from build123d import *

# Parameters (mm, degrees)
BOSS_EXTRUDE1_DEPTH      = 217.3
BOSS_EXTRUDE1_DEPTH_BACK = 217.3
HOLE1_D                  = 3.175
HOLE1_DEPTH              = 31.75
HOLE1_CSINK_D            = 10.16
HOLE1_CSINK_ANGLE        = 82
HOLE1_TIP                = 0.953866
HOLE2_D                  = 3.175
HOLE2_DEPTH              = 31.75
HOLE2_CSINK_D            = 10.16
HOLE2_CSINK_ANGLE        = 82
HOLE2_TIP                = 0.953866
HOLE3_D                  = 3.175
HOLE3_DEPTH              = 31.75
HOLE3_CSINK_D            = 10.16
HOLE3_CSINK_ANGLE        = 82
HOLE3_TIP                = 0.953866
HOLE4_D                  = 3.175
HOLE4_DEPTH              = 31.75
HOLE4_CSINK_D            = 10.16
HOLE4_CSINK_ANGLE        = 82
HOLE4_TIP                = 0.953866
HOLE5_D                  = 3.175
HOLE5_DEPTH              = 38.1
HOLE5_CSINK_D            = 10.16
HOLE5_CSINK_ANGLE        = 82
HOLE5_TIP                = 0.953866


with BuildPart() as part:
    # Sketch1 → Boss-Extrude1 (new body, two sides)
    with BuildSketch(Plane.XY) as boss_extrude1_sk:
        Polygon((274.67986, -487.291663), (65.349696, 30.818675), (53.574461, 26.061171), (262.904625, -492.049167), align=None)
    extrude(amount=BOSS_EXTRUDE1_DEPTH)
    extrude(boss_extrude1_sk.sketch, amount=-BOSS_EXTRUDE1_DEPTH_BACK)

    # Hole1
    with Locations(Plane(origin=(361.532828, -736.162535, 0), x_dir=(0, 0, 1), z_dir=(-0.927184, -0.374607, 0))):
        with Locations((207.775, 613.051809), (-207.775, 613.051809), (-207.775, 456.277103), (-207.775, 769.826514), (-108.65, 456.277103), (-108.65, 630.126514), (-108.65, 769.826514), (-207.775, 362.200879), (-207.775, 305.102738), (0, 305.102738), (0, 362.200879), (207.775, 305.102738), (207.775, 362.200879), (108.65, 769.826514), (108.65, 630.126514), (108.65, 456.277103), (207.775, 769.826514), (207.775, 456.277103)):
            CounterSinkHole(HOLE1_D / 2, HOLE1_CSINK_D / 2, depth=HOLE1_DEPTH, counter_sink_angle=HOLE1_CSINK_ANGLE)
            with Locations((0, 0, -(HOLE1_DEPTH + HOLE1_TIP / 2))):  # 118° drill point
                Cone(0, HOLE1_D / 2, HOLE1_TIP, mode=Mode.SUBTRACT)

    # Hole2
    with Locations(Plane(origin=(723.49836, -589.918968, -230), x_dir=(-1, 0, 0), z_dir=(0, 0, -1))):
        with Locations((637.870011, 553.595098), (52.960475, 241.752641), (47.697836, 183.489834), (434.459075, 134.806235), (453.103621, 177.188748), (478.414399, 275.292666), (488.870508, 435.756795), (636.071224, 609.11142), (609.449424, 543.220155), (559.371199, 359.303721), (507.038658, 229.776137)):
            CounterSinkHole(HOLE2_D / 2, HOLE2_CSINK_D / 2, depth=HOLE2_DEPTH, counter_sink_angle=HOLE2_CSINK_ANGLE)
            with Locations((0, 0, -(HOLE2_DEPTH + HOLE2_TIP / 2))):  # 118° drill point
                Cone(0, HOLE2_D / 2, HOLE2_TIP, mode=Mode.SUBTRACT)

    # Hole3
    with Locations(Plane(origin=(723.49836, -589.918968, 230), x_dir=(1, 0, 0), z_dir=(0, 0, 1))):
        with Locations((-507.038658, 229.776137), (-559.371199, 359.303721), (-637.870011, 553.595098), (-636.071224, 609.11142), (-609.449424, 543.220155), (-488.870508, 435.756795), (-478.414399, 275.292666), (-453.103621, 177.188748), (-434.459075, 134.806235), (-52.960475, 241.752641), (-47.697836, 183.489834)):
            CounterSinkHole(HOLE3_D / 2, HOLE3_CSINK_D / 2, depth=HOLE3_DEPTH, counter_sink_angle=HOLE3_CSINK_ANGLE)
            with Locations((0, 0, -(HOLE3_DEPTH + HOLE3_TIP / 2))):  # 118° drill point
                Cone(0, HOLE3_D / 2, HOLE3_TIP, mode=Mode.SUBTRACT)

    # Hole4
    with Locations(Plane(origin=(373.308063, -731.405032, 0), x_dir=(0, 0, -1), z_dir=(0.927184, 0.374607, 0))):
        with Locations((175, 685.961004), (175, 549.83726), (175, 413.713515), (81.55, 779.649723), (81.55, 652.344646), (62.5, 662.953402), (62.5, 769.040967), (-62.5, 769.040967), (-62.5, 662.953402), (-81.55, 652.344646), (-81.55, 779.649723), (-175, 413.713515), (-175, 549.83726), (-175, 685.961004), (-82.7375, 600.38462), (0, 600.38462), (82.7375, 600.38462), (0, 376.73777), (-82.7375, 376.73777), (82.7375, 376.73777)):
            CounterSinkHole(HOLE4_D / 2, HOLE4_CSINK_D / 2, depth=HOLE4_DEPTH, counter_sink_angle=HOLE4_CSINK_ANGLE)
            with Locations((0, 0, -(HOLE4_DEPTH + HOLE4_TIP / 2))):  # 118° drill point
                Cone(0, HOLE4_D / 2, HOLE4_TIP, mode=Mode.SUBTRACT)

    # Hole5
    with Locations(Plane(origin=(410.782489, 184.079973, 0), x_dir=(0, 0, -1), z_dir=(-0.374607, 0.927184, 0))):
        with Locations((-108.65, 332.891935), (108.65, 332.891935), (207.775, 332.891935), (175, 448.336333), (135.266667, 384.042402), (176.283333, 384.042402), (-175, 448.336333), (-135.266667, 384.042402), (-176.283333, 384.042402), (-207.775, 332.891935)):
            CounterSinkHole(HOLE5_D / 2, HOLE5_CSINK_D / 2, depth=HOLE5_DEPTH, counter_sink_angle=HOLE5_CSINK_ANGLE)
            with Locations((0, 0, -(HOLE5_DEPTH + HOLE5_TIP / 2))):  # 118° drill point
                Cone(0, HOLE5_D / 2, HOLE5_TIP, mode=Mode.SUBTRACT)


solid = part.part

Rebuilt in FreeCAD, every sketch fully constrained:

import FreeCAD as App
import Part
import Sketcher
from FreeCAD import Vector
Q = App.Units.Quantity

doc = App.newDocument("Part")
body = doc.addObject("PartDesign::Body", "Body")

# Sketch on XY plane
sketch1 = body.newObject("Sketcher::SketchObject", "Sketch")
sketch1.AttachmentSupport = (doc.getObject("XY_Plane"), [""])
sketch1.MapMode = "FlatFace"
sketch1.addGeometry([
    Part.LineSegment(Vector(275, -487, 0), Vector(65, 31, 0)),
    Part.LineSegment(Vector(65, 31, 0), Vector(54, 26, 0)),
    Part.LineSegment(Vector(54, 26, 0), Vector(263, -492, 0)),
    Part.LineSegment(Vector(263, -492, 0), Vector(275, -487, 0)),
], False)
sketch1.addConstraint([
    Sketcher.Constraint("Coincident", 0, 2, 1, 1),
    Sketcher.Constraint("Coincident", 1, 2, 2, 1),
    Sketcher.Constraint("Coincident", 2, 2, 3, 1),
    Sketcher.Constraint("Coincident", 3, 2, 0, 1),
    Sketcher.Constraint("Perpendicular", 0, 1),
    Sketcher.Constraint("Perpendicular", 1, 2),
    Sketcher.Constraint("Perpendicular", 2, 3),
    Sketcher.Constraint("Distance", 0, Q("22 in")),
    Sketcher.Constraint("Angle", 0, Q("112 deg")),
    Sketcher.Constraint("Distance", 1, Q("0.5 in")),
    Sketcher.Constraint("DistanceX", -1, 1, 1, 2, Q("53.574461 mm")),
    Sketcher.Constraint("DistanceY", -1, 1, 1, 2, Q("26.061171 mm")),
])
pad1 = body.newObject("PartDesign::Pad", "Pad")
pad1.Profile = sketch1
pad1.Type = "TwoLengths"
pad1.Length = 217.3
pad1.Length2 = 217.3

# Sketch on an angled plane
sketch2 = body.newObject("Sketcher::SketchObject", "Sketch001")
sketch2.Placement = App.Placement(Vector(55.107905, 22.26506, 0), App.Rotation(Vector(0, 0, 1), Vector(-0.374606892, 0.927183734, 0), Vector(-0.927183734, -0.374606892, 0), "ZXY"))
sketch2.addGeometry([
    Part.Circle(Vector(207.8, -204.9, 0), Vector(0, 0, 1), 1.6),  # 0
    Part.Circle(Vector(-207.8, -204.9, 0), Vector(0, 0, 1), 1.6),  # 1
    Part.Circle(Vector(-207.8, -361.7, 0), Vector(0, 0, 1), 1.6),  # 2
    Part.Circle(Vector(-207.8, -48.2, 0), Vector(0, 0, 1), 1.6),  # 3
    Part.Circle(Vector(-108.7, -361.7, 0), Vector(0, 0, 1), 1.6),  # 4
    Part.Circle(Vector(-108.7, -187.9, 0), Vector(0, 0, 1), 1.6),  # 5
    Part.Circle(Vector(-108.7, -48.2, 0), Vector(0, 0, 1), 1.6),  # 6
    Part.Circle(Vector(-207.8, -455.8, 0), Vector(0, 0, 1), 1.6),  # 7
    Part.Circle(Vector(-207.8, -512.9, 0), Vector(0, 0, 1), 1.6),  # 8
    Part.Circle(Vector(0, -512.9, 0), Vector(0, 0, 1), 1.6),  # 9
    Part.Circle(Vector(0, -455.8, 0), Vector(0, 0, 1), 1.6),  # 10
    Part.Circle(Vector(207.8, -512.9, 0), Vector(0, 0, 1), 1.6),  # 11
    Part.Circle(Vector(207.8, -455.8, 0), Vector(0, 0, 1), 1.6),  # 12
    Part.Circle(Vector(108.7, -48.2, 0), Vector(0, 0, 1), 1.6),  # 13
    Part.Circle(Vector(108.7, -187.9, 0), Vector(0, 0, 1), 1.6),  # 14
    Part.Circle(Vector(108.7, -361.7, 0), Vector(0, 0, 1), 1.6),  # 15
    Part.Circle(Vector(207.8, -48.2, 0), Vector(0, 0, 1), 1.6),  # 16
    Part.Circle(Vector(207.8, -361.7, 0), Vector(0, 0, 1), 1.6),  # 17
], False)
sketch2.addConstraint([
    Sketcher.Constraint("Equal", 0, 1),
    Sketcher.Constraint("Equal", 1, 2),
    Sketcher.Constraint("Equal", 2, 3),
    Sketcher.Constraint("Equal", 3, 4),
    Sketcher.Constraint("Equal", 4, 5),
    Sketcher.Constraint("Equal", 5, 6),
    Sketcher.Constraint("Equal", 6, 7),
    Sketcher.Constraint("Equal", 7, 8),
    Sketcher.Constraint("Equal", 8, 9),
    Sketcher.Constraint("Equal", 9, 10),
    Sketcher.Constraint("Equal", 10, 11),
    Sketcher.Constraint("Equal", 11, 12),
    Sketcher.Constraint("Equal", 12, 13),
    Sketcher.Constraint("Equal", 13, 14),
    Sketcher.Constraint("Equal", 14, 15),
    Sketcher.Constraint("Equal", 15, 16),
    Sketcher.Constraint("Equal", 16, 17),
    Sketcher.Constraint("Symmetric", 0, 3, 1, 3, -2),
    Sketcher.Constraint("Symmetric", 8, 3, 11, 3, -2),
    Sketcher.Constraint("Symmetric", 7, 3, 12, 3, -2),
    Sketcher.Constraint("Symmetric", 6, 3, 13, 3, -2),
    Sketcher.Constraint("Symmetric", 5, 3, 14, 3, -2),
    Sketcher.Constraint("Symmetric", 4, 3, 15, 3, -2),
    Sketcher.Constraint("Symmetric", 3, 3, 16, 3, -2),
    Sketcher.Constraint("Symmetric", 2, 3, 17, 3, -2),
    Sketcher.Constraint("PointOnObject", 9, 3, -2),
    Sketcher.Constraint("PointOnObject", 10, 3, -2),
    Sketcher.Constraint("Horizontal", 2, 3, 4, 3),
    Sketcher.Constraint("Horizontal", 3, 3, 6, 3),
    Sketcher.Constraint("Horizontal", 8, 3, 9, 3),
    Sketcher.Constraint("Horizontal", 7, 3, 10, 3),
    Sketcher.Constraint("Vertical", 1, 3, 2, 3),
    Sketcher.Constraint("Vertical", 2, 3, 3, 3),
    Sketcher.Constraint("Vertical", 4, 3, 5, 3),
    Sketcher.Constraint("Vertical", 5, 3, 6, 3),
    Sketcher.Constraint("Vertical", 3, 3, 7, 3),
    Sketcher.Constraint("Vertical", 7, 3, 8, 3),
    Sketcher.Constraint("Diameter", 0, Q("0.125 in")),
    Sketcher.Constraint("DistanceY", 5, 3, 3, 3, Q("5.5 in")),
    Sketcher.Constraint("DistanceX", -1, 1, 0, 3, Q("207.775 mm")),
    Sketcher.Constraint("DistanceX", 4, 3, -1, 1, Q("108.65 mm")),
    Sketcher.Constraint("DistanceY", 0, 3, -1, 1, Q("204.938808 mm")),
    Sketcher.Constraint("DistanceY", 7, 3, -1, 1, Q("455.789738 mm")),
    Sketcher.Constraint("DistanceY", 8, 3, -1, 1, Q("512.887879 mm")),
    Sketcher.Constraint("DistanceY", 2, 3, 3, 3, Q("313.549411 mm")),
    Sketcher.Constraint("DistanceY", 2, 3, -1, 1, Q("361.713514 mm")),
])
doc.recompute()
hole = body.newObject("PartDesign::Hole", "Hole")
hole.Profile = sketch2
hole.ThreadType = "None"
hole.Diameter = Q("0.125 in")
hole.DepthType = "Dimension"
hole.Depth = Q("1.25 in")
hole.DrillPoint = "Angled"
hole.DrillPointAngle = 118
hole.HoleCutType = "Countersink"
hole.HoleCutDiameter = Q("0.4 in")
hole.HoleCutCountersinkAngle = 82

# Sketch on XY plane
sketch3 = body.newObject("Sketcher::SketchObject", "Sketch002")
sketch3.AttachmentSupport = (doc.getObject("XY_Plane"), [""])
sketch3.MapMode = "FlatFace"
sketch3.AttachmentOffset = App.Placement(Vector(0, 0, -230), App.Rotation())
sketch3.addGeometry([
    Part.Circle(Vector(85.6, -36.3, 0), Vector(0, 0, 1), 1.6),  # 0
    Part.Circle(Vector(670.5, -348.2, 0), Vector(0, 0, 1), 1.6),  # 1
    Part.Circle(Vector(675.8, -406.4, 0), Vector(0, 0, 1), 1.6),  # 2
    Part.Circle(Vector(289, -455.1, 0), Vector(0, 0, 1), 1.6),  # 3
    Part.Circle(Vector(270.4, -412.7, 0), Vector(0, 0, 1), 1.6),  # 4
    Part.Circle(Vector(245.1, -314.6, 0), Vector(0, 0, 1), 1.6),  # 5
    Part.Circle(Vector(234.6, -154.2, 0), Vector(0, 0, 1), 1.6),  # 6
    Part.Circle(Vector(87.4, 19.2, 0), Vector(0, 0, 1), 1.6),  # 7
    Part.Circle(Vector(114, -46.7, 0), Vector(0, 0, 1), 1.6),  # 8
    Part.Circle(Vector(164.1, -230.6, 0), Vector(0, 0, 1), 1.6),  # 9
    Part.Circle(Vector(216.5, -360.1, 0), Vector(0, 0, 1), 1.6),  # 10
], False)
sketch3.addConstraint([
    Sketcher.Constraint("Equal", 0, 1),
    Sketcher.Constraint("Equal", 1, 2),
    Sketcher.Constraint("Equal", 2, 3),
    Sketcher.Constraint("Equal", 3, 4),
    Sketcher.Constraint("Equal", 4, 5),
    Sketcher.Constraint("Equal", 5, 6),
    Sketcher.Constraint("Equal", 6, 7),
    Sketcher.Constraint("Equal", 7, 8),
    Sketcher.Constraint("Equal", 8, 9),
    Sketcher.Constraint("Equal", 9, 10),
    Sketcher.Constraint("Diameter", 0, Q("0.125 in")),
    Sketcher.Constraint("DistanceY", 5, 3, -1, 1, Q("314.626302 mm")),
    Sketcher.Constraint("DistanceX", -1, 1, 10, 3, Q("216.459702 mm")),
    Sketcher.Constraint("DistanceY", 3, 3, 2, 3, Q("48.683599 mm")),
    Sketcher.Constraint("DistanceX", 3, 3, 1, 3, Q("381.4986 mm")),
    Sketcher.Constraint("DistanceX", 7, 3, 8, 3, Q("26.6218 mm")),
    Sketcher.Constraint("DistanceX", 9, 3, 5, 3, Q("80.9568 mm")),
    Sketcher.Constraint("DistanceY", 3, 3, 10, 3, Q("94.969902 mm")),
    Sketcher.Constraint("DistanceX", -1, 1, 0, 3, Q("85.628349 mm")),
    Sketcher.Constraint("DistanceY", 0, 3, -1, 1, Q("36.32387 mm")),
    Sketcher.Constraint("DistanceX", -1, 1, 4, 3, Q("270.394739 mm")),
    Sketcher.Constraint("DistanceY", 4, 3, -1, 1, Q("412.73022 mm")),
    Sketcher.Constraint("DistanceX", -1, 1, 5, 3, Q("245.083961 mm")),
    Sketcher.Constraint("DistanceX", -1, 1, 6, 3, Q("234.627852 mm")),
    Sketcher.Constraint("DistanceY", -1, 1, 7, 3, Q("19.192452 mm")),
    Sketcher.Constraint("DistanceY", 10, 3, -1, 1, Q("360.142831 mm")),
    Sketcher.Constraint("DistanceX", 1, 3, 2, 3, Q("5.262639 mm")),
    Sketcher.Constraint("DistanceY", 5, 3, 6, 3, Q("160.464129 mm")),
    Sketcher.Constraint("DistanceX", 7, 3, 3, 3, Q("201.612149 mm")),
    Sketcher.Constraint("DistanceY", 6, 3, 8, 3, Q("107.46336 mm")),
    Sketcher.Constraint("DistanceX", -1, 1, 1, 3, Q("670.537885 mm")),
    Sketcher.Constraint("DistanceY", 1, 3, -1, 1, Q("348.166327 mm")),
    Sketcher.Constraint("DistanceY", 9, 3, -1, 1, Q("230.615247 mm")),
])
doc.recompute()
hole2 = body.newObject("PartDesign::Hole", "Hole001")
hole2.Profile = sketch3
hole2.ThreadType = "None"
hole2.Diameter = Q("0.125 in")
hole2.DepthType = "Dimension"
hole2.Depth = Q("1.25 in")
hole2.DrillPoint = "Angled"
hole2.DrillPointAngle = 118
hole2.HoleCutType = "Countersink"
hole2.HoleCutDiameter = Q("0.4 in")
hole2.HoleCutCountersinkAngle = 82
hole2.Reversed = True

# Sketch on XY plane
sketch4 = body.newObject("Sketcher::SketchObject", "Sketch003")
sketch4.AttachmentSupport = (doc.getObject("XY_Plane"), [""])
sketch4.MapMode = "FlatFace"
sketch4.AttachmentOffset = App.Placement(Vector(0, 0, 230), App.Rotation())
sketch4.addGeometry([
    Part.Circle(Vector(216.5, -360.1, 0), Vector(0, 0, 1), 1.6),  # 0
    Part.Circle(Vector(164.1, -230.6, 0), Vector(0, 0, 1), 1.6),  # 1
    Part.Circle(Vector(85.6, -36.3, 0), Vector(0, 0, 1), 1.6),  # 2
    Part.Circle(Vector(87.4, 19.2, 0), Vector(0, 0, 1), 1.6),  # 3
    Part.Circle(Vector(114, -46.7, 0), Vector(0, 0, 1), 1.6),  # 4
    Part.Circle(Vector(234.6, -154.2, 0), Vector(0, 0, 1), 1.6),  # 5
    Part.Circle(Vector(245.1, -314.6, 0), Vector(0, 0, 1), 1.6),  # 6
    Part.Circle(Vector(270.4, -412.7, 0), Vector(0, 0, 1), 1.6),  # 7
    Part.Circle(Vector(289, -455.1, 0), Vector(0, 0, 1), 1.6),  # 8
    Part.Circle(Vector(670.5, -348.2, 0), Vector(0, 0, 1), 1.6),  # 9
    Part.Circle(Vector(675.8, -406.4, 0), Vector(0, 0, 1), 1.6),  # 10
], False)
sketch4.addConstraint([
    Sketcher.Constraint("Equal", 0, 1),
    Sketcher.Constraint("Equal", 1, 2),
    Sketcher.Constraint("Equal", 2, 3),
    Sketcher.Constraint("Equal", 3, 4),
    Sketcher.Constraint("Equal", 4, 5),
    Sketcher.Constraint("Equal", 5, 6),
    Sketcher.Constraint("Equal", 6, 7),
    Sketcher.Constraint("Equal", 7, 8),
    Sketcher.Constraint("Equal", 8, 9),
    Sketcher.Constraint("Equal", 9, 10),
    Sketcher.Constraint("Diameter", 0, Q("0.125 in")),
    Sketcher.Constraint("DistanceX", 1, 3, 8, 3, Q("4.9178002 in")),
    Sketcher.Constraint("DistanceX", -1, 1, 0, 3, Q("216.459702 mm")),
    Sketcher.Constraint("DistanceY", 6, 3, -1, 1, Q("314.626302 mm")),
    Sketcher.Constraint("DistanceY", 1, 3, 3, 3, Q("249.807699 mm")),
    Sketcher.Constraint("DistanceX", 3, 3, 4, 3, Q("26.6218 mm")),
    Sketcher.Constraint("DistanceX", 1, 3, 6, 3, Q("80.9568 mm")),
    Sketcher.Constraint("DistanceY", 8, 3, 0, 3, Q("94.969902 mm")),
    Sketcher.Constraint("DistanceX", 8, 3, 9, 3, Q("381.4986 mm")),
    Sketcher.Constraint("DistanceY", 8, 3, 10, 3, Q("48.683599 mm")),
    Sketcher.Constraint("DistanceY", 0, 3, -1, 1, Q("360.142831 mm")),
    Sketcher.Constraint("DistanceX", -1, 1, 1, 3, Q("164.127161 mm")),
    Sketcher.Constraint("DistanceX", -1, 1, 2, 3, Q("85.628349 mm")),
    Sketcher.Constraint("DistanceY", 2, 3, -1, 1, Q("36.32387 mm")),
    Sketcher.Constraint("DistanceY", -1, 1, 3, 3, Q("19.192452 mm")),
    Sketcher.Constraint("DistanceX", -1, 1, 5, 3, Q("234.627852 mm")),
    Sketcher.Constraint("DistanceX", -1, 1, 7, 3, Q("270.394739 mm")),
    Sketcher.Constraint("DistanceY", 7, 3, -1, 1, Q("412.73022 mm")),
    Sketcher.Constraint("DistanceY", 0, 3, 4, 3, Q("313.444018 mm")),
    Sketcher.Constraint("DistanceY", 5, 3, 4, 3, Q("107.46336 mm")),
    Sketcher.Constraint("DistanceX", 9, 3, 10, 3, Q("5.262639 mm")),
    Sketcher.Constraint("DistanceX", -1, 1, 3, 3, Q("87.427136 mm")),
    Sketcher.Constraint("DistanceY", 9, 3, -1, 1, Q("348.166327 mm")),
])
doc.recompute()
hole3 = body.newObject("PartDesign::Hole", "Hole002")
hole3.Profile = sketch4
hole3.ThreadType = "None"
hole3.Diameter = Q("0.125 in")
hole3.DepthType = "Dimension"
hole3.Depth = Q("1.25 in")
hole3.DrillPoint = "Angled"
hole3.DrillPointAngle = 118
hole3.HoleCutType = "Countersink"
hole3.HoleCutDiameter = Q("0.4 in")
hole3.HoleCutCountersinkAngle = 82

# Sketch on an angled plane
sketch5 = body.newObject("Sketcher::SketchObject", "Sketch004")
sketch5.Placement = App.Placement(Vector(66.883138, 27.022567, 0), App.Rotation(Vector(0, 0, -1), Vector(-0.374606892, 0.927183734, 0), Vector(0.927183734, 0.374606892, 0), "ZXY"))
sketch5.addGeometry([
    Part.Circle(Vector(175, -132, 0), Vector(0, 0, 1), 1.6),  # 0
    Part.Circle(Vector(175, -268.2, 0), Vector(0, 0, 1), 1.6),  # 1
    Part.Circle(Vector(175, -404.3, 0), Vector(0, 0, 1), 1.6),  # 2
    Part.Circle(Vector(81.5, -38.3, 0), Vector(0, 0, 1), 1.6),  # 3
    Part.Circle(Vector(81.5, -165.6, 0), Vector(0, 0, 1), 1.6),  # 4
    Part.Circle(Vector(62.5, -155, 0), Vector(0, 0, 1), 1.6),  # 5
    Part.Circle(Vector(62.5, -48.9, 0), Vector(0, 0, 1), 1.6),  # 6
    Part.Circle(Vector(-62.5, -48.9, 0), Vector(0, 0, 1), 1.6),  # 7
    Part.Circle(Vector(-62.5, -155, 0), Vector(0, 0, 1), 1.6),  # 8
    Part.Circle(Vector(-81.5, -165.6, 0), Vector(0, 0, 1), 1.6),  # 9
    Part.Circle(Vector(-81.5, -38.3, 0), Vector(0, 0, 1), 1.6),  # 10
    Part.Circle(Vector(-175, -404.3, 0), Vector(0, 0, 1), 1.6),  # 11
    Part.Circle(Vector(-175, -268.2, 0), Vector(0, 0, 1), 1.6),  # 12
    Part.Circle(Vector(-175, -132, 0), Vector(0, 0, 1), 1.6),  # 13
    Part.Circle(Vector(-82.7, -217.6, 0), Vector(0, 0, 1), 1.6),  # 14
    Part.Circle(Vector(0, -217.6, 0), Vector(0, 0, 1), 1.6),  # 15
    Part.Circle(Vector(82.7, -217.6, 0), Vector(0, 0, 1), 1.6),  # 16
    Part.Circle(Vector(0, -441.3, 0), Vector(0, 0, 1), 1.6),  # 17
    Part.Circle(Vector(-82.7, -441.3, 0), Vector(0, 0, 1), 1.6),  # 18
    Part.Circle(Vector(82.7, -441.3, 0), Vector(0, 0, 1), 1.6),  # 19
], False)
sketch5.addConstraint([
    Sketcher.Constraint("Equal", 0, 1),
    Sketcher.Constraint("Equal", 1, 2),
    Sketcher.Constraint("Equal", 2, 3),
    Sketcher.Constraint("Equal", 3, 4),
    Sketcher.Constraint("Equal", 4, 5),
    Sketcher.Constraint("Equal", 5, 6),
    Sketcher.Constraint("Equal", 6, 7),
    Sketcher.Constraint("Equal", 7, 8),
    Sketcher.Constraint("Equal", 8, 9),
    Sketcher.Constraint("Equal", 9, 10),
    Sketcher.Constraint("Equal", 10, 11),
    Sketcher.Constraint("Equal", 11, 12),
    Sketcher.Constraint("Equal", 12, 13),
    Sketcher.Constraint("Equal", 13, 14),
    Sketcher.Constraint("Equal", 14, 15),
    Sketcher.Constraint("Equal", 15, 16),
    Sketcher.Constraint("Equal", 16, 17),
    Sketcher.Constraint("Equal", 17, 18),
    Sketcher.Constraint("Equal", 18, 19),
    Sketcher.Constraint("Symmetric", 6, 3, 7, 3, -2),
    Sketcher.Constraint("Symmetric", 5, 3, 8, 3, -2),
    Sketcher.Constraint("Symmetric", 4, 3, 9, 3, -2),
    Sketcher.Constraint("Symmetric", 3, 3, 10, 3, -2),
    Sketcher.Constraint("Symmetric", 2, 3, 11, 3, -2),
    Sketcher.Constraint("Symmetric", 1, 3, 12, 3, -2),
    Sketcher.Constraint("Symmetric", 0, 3, 13, 3, -2),
    Sketcher.Constraint("Symmetric", 14, 3, 16, 3, -2),
    Sketcher.Constraint("Symmetric", 18, 3, 19, 3, -2),
    Sketcher.Constraint("PointOnObject", 15, 3, -2),
    Sketcher.Constraint("PointOnObject", 17, 3, -2),
    Sketcher.Constraint("Horizontal", 14, 3, 15, 3),
    Sketcher.Constraint("Horizontal", 17, 3, 18, 3),
    Sketcher.Constraint("Vertical", 0, 3, 1, 3),
    Sketcher.Constraint("Vertical", 1, 3, 2, 3),
    Sketcher.Constraint("Vertical", 3, 3, 4, 3),
    Sketcher.Constraint("Vertical", 5, 3, 6, 3),
    Sketcher.Constraint("Vertical", 14, 3, 18, 3),
    Sketcher.Constraint("Diameter", 0, Q("0.125 in")),
    Sketcher.Constraint("DistanceX", 5, 3, 4, 3, Q("0.75 in")),
    Sketcher.Constraint("DistanceX", -1, 1, 0, 3, Q("175 mm")),
    Sketcher.Constraint("DistanceX", -1, 1, 3, 3, Q("81.55 mm")),
    Sketcher.Constraint("DistanceY", 3, 3, -1, 1, Q("38.340899 mm")),
    Sketcher.Constraint("DistanceX", 14, 3, -1, 1, Q("82.7375 mm")),
    Sketcher.Constraint("DistanceY", 14, 3, -1, 1, Q("217.606002 mm")),
    Sketcher.Constraint("DistanceY", 1, 3, -1, 1, Q("268.153362 mm")),
    Sketcher.Constraint("DistanceY", 5, 3, -1, 1, Q("155.03722 mm")),
    Sketcher.Constraint("DistanceY", 17, 3, -1, 1, Q("441.252852 mm")),
    Sketcher.Constraint("DistanceY", 2, 3, 0, 3, Q("272.247489 mm")),
    Sketcher.Constraint("DistanceY", 0, 3, 3, 3, Q("93.688719 mm")),
    Sketcher.Constraint("DistanceY", 4, 3, 0, 3, Q("33.616358 mm")),
    Sketcher.Constraint("DistanceY", 4, 3, 6, 3, Q("116.696321 mm")),
])
doc.recompute()
hole4 = body.newObject("PartDesign::Hole", "Hole003")
hole4.Profile = sketch5
hole4.ThreadType = "None"
hole4.Diameter = Q("0.125 in")
hole4.DepthType = "Dimension"
hole4.Depth = Q("1.25 in")
hole4.DrillPoint = "Angled"
hole4.DrillPointAngle = 118
hole4.HoleCutType = "Countersink"
hole4.HoleCutDiameter = Q("0.4 in")
hole4.HoleCutCountersinkAngle = 82

# Sketch on an angled plane
sketch6 = body.newObject("Sketcher::SketchObject", "Sketch005")
sketch6.Placement = App.Placement(Vector(-6.29115, 15.571128, 0), App.Rotation(Vector(0, 0, -1), Vector(-0.927183734, -0.374606892, 0), Vector(-0.374606892, 0.927183734, 0), "ZXY"))
sketch6.addGeometry([
    Part.Circle(Vector(-108.7, -116.9, 0), Vector(0, 0, 1), 1.6),  # 0
    Part.Circle(Vector(108.7, -116.9, 0), Vector(0, 0, 1), 1.6),  # 1
    Part.Circle(Vector(207.8, -116.9, 0), Vector(0, 0, 1), 1.6),  # 2
    Part.Circle(Vector(175, -1.5, 0), Vector(0, 0, 1), 1.6),  # 3
    Part.Circle(Vector(135.3, -65.8, 0), Vector(0, 0, 1), 1.6),  # 4
    Part.Circle(Vector(176.3, -65.8, 0), Vector(0, 0, 1), 1.6),  # 5
    Part.Circle(Vector(-175, -1.5, 0), Vector(0, 0, 1), 1.6),  # 6
    Part.Circle(Vector(-135.3, -65.8, 0), Vector(0, 0, 1), 1.6),  # 7
    Part.Circle(Vector(-176.3, -65.8, 0), Vector(0, 0, 1), 1.6),  # 8
    Part.Circle(Vector(-207.8, -116.9, 0), Vector(0, 0, 1), 1.6),  # 9
], False)
sketch6.addConstraint([
    Sketcher.Constraint("Equal", 0, 1),
    Sketcher.Constraint("Equal", 1, 2),
    Sketcher.Constraint("Equal", 2, 3),
    Sketcher.Constraint("Equal", 3, 4),
    Sketcher.Constraint("Equal", 4, 5),
    Sketcher.Constraint("Equal", 5, 6),
    Sketcher.Constraint("Equal", 6, 7),
    Sketcher.Constraint("Equal", 7, 8),
    Sketcher.Constraint("Equal", 8, 9),
    Sketcher.Constraint("Symmetric", 0, 3, 1, 3, -2),
    Sketcher.Constraint("Symmetric", 3, 3, 6, 3, -2),
    Sketcher.Constraint("Symmetric", 4, 3, 7, 3, -2),
    Sketcher.Constraint("Symmetric", 5, 3, 8, 3, -2),
    Sketcher.Constraint("Symmetric", 2, 3, 9, 3, -2),
    Sketcher.Constraint("Horizontal", 1, 3, 2, 3),
    Sketcher.Constraint("Horizontal", 4, 3, 5, 3),
    Sketcher.Constraint("Diameter", 0, Q("0.125 in")),
    Sketcher.Constraint("DistanceX", 0, 3, -1, 1, Q("108.65 mm")),
    Sketcher.Constraint("DistanceX", -1, 1, 2, 3, Q("207.775 mm")),
    Sketcher.Constraint("DistanceX", -1, 1, 3, 3, Q("175 mm")),
    Sketcher.Constraint("DistanceY", 2, 3, 3, 3, Q("115.444398 mm")),
    Sketcher.Constraint("DistanceX", 7, 3, 5, 3, Q("311.55 mm")),
    Sketcher.Constraint("DistanceY", 4, 3, 3, 3, Q("64.293931 mm")),
    Sketcher.Constraint("DistanceY", 0, 3, -1, 1, Q("116.936534 mm")),
    Sketcher.Constraint("DistanceX", -1, 1, 4, 3, Q("135.266667 mm")),
])
doc.recompute()
hole5 = body.newObject("PartDesign::Hole", "Hole004")
hole5.Profile = sketch6
hole5.ThreadType = "None"
hole5.Diameter = Q("0.125 in")
hole5.DepthType = "Dimension"
hole5.Depth = Q("1.5 in")
hole5.DrillPoint = "Angled"
hole5.DrillPointAngle = 118
hole5.HoleCutType = "Countersink"
hole5.HoleCutDiameter = Q("0.4 in")
hole5.HoleCutCountersinkAngle = 82

doc.recompute()
